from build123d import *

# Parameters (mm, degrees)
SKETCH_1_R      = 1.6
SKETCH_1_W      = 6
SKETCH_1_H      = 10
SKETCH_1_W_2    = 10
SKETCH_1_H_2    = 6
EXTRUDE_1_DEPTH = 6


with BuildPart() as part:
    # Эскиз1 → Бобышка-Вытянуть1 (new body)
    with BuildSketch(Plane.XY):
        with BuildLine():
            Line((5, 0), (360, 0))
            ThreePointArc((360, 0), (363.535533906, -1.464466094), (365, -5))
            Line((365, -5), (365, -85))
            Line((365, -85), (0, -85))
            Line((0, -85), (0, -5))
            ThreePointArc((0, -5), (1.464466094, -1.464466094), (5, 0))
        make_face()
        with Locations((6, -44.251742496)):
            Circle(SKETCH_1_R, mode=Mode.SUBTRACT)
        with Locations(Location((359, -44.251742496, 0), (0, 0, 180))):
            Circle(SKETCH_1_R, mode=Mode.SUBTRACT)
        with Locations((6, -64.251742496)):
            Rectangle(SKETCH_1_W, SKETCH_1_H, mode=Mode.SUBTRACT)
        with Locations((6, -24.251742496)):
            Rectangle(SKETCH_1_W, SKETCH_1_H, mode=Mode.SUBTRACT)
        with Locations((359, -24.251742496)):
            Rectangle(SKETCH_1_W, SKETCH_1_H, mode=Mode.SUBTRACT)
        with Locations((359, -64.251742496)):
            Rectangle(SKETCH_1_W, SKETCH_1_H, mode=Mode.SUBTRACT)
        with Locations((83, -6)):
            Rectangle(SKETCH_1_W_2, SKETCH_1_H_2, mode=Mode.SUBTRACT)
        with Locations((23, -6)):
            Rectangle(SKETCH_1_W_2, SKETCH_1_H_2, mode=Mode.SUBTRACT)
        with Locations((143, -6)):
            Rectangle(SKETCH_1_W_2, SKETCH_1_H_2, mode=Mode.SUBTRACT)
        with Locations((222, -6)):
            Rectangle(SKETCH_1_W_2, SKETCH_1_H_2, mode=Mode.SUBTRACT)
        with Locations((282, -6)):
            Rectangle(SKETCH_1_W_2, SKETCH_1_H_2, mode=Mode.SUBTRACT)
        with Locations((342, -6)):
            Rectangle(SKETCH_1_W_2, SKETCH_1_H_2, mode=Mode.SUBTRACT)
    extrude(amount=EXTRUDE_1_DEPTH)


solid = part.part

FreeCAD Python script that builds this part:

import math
import FreeCAD as App
import Part
import Sketcher
Q = App.Units.Quantity

doc = App.newDocument("Part")
params = doc.addObject("Spreadsheet::Sheet", "Params")
for row, (alias, value) in enumerate([
    ("sketch1_radius", "5 mm"),
    ("sketch1_diameter", "3.2 mm"),
    ("sketch1_width", "355 mm"),
    ("sketch1_width2", "6 mm"),
    ("sketch1_width3", "10 mm"),
    ("pad1_length", "6 mm"),
], start=1):
    params.set(f"A{row}", alias)
    params.set(f"B{row}", "=" + value)
    params.setAlias(f"B{row}", alias)

body = doc.addObject("PartDesign::Body", "Body")

sketch1 = body.newObject("Sketcher::SketchObject", "Sketch")
sketch1.AttachmentSupport = (doc.getObject("XY_Plane"), [""])
sketch1.MapMode = "FlatFace"
sketch1.addGeometry(Part.LineSegment(App.Vector(360, 0, 0), App.Vector(5, 0, 0)), False)
sketch1.addGeometry(Part.ArcOfCircle(Part.Circle(App.Vector(5, -5, 0), App.Vector(0, 0, 1), 5), math.radians(90), math.radians(180)), False)
sketch1.addGeometry(Part.LineSegment(App.Vector(0, -5, 0), App.Vector(0, -85, 0)), False)
sketch1.addGeometry(Part.LineSegment(App.Vector(0, -85, 0), App.Vector(365, -85, 0)), False)
sketch1.addGeometry(Part.LineSegment(App.Vector(365, -85, 0), App.Vector(365, -5, 0)), False)
sketch1.addGeometry(Part.ArcOfCircle(Part.Circle(App.Vector(360, -5, 0), App.Vector(0, 0, 1), 5), math.radians(0), math.radians(90)), False)
sketch1.addGeometry(Part.LineSegment(App.Vector(356, -69.3, 0), App.Vector(356, -59.3, 0)), False)
sketch1.addGeometry(Part.LineSegment(App.Vector(356, -59.3, 0), App.Vector(362, -59.3, 0)), False)
sketch1.addGeometry(Part.LineSegment(App.Vector(362, -59.3, 0), App.Vector(362, -69.3, 0)), False)
sketch1.addGeometry(Part.LineSegment(App.Vector(362, -69.3, 0), App.Vector(356, -69.3, 0)), False)
sketch1.addGeometry(Part.Circle(App.Vector(359, -44.3, 0), App.Vector(0, 0, 1), 1.6), False)
sketch1.addGeometry(Part.LineSegment(App.Vector(3, -69.3, 0), App.Vector(3, -59.3, 0)), False)
sketch1.addGeometry(Part.LineSegment(App.Vector(3, -59.3, 0), App.Vector(9, -59.3, 0)), False)
sketch1.addGeometry(Part.LineSegment(App.Vector(9, -59.3, 0), App.Vector(9, -69.3, 0)), False)
sketch1.addGeometry(Part.LineSegment(App.Vector(9, -69.3, 0), App.Vector(3, -69.3, 0)), False)
sketch1.addGeometry(Part.Circle(App.Vector(6, -44.3, 0), App.Vector(0, 0, 1), 1.6), False)
sketch1.addGeometry(Part.LineSegment(App.Vector(356, -29.3, 0), App.Vector(356, -19.3, 0)), False)
sketch1.addGeometry(Part.LineSegment(App.Vector(356, -19.3, 0), App.Vector(362, -19.3, 0)), False)
sketch1.addGeometry(Part.LineSegment(App.Vector(362, -19.3, 0), App.Vector(362, -29.3, 0)), False)
sketch1.addGeometry(Part.LineSegment(App.Vector(362, -29.3, 0), App.Vector(356, -29.3, 0)), False)
sketch1.addGeometry(Part.LineSegment(App.Vector(337, -9, 0), App.Vector(337, -3, 0)), False)
sketch1.addGeometry(Part.LineSegment(App.Vector(337, -3, 0), App.Vector(347, -3, 0)), False)
sketch1.addGeometry(Part.LineSegment(App.Vector(347, -3, 0), App.Vector(347, -9, 0)), False)
sketch1.addGeometry(Part.LineSegment(App.Vector(347, -9, 0), App.Vector(337, -9, 0)), False)
sketch1.addGeometry(Part.LineSegment(App.Vector(277, -9, 0), App.Vector(277, -3, 0)), False)
sketch1.addGeometry(Part.LineSegment(App.Vector(277, -3, 0), App.Vector(287, -3, 0)), False)
sketch1.addGeometry(Part.LineSegment(App.Vector(287, -3, 0), App.Vector(287, -9, 0)), False)
sketch1.addGeometry(Part.LineSegment(App.Vector(287, -9, 0), App.Vector(277, -9, 0)), False)
sketch1.addGeometry(Part.LineSegment(App.Vector(217, -9, 0), App.Vector(217, -3, 0)), False)
sketch1.addGeometry(Part.LineSegment(App.Vector(217, -3, 0), App.Vector(227, -3, 0)), False)
sketch1.addGeometry(Part.LineSegment(App.Vector(227, -3, 0), App.Vector(227, -9, 0)), False)
sketch1.addGeometry(Part.LineSegment(App.Vector(227, -9, 0), App.Vector(217, -9, 0)), False)
sketch1.addGeometry(Part.LineSegment(App.Vector(3, -29.3, 0), App.Vector(3, -19.3, 0)), False)
sketch1.addGeometry(Part.LineSegment(App.Vector(3, -19.3, 0), App.Vector(9, -19.3, 0)), False)
sketch1.addGeometry(Part.LineSegment(App.Vector(9, -19.3, 0), App.Vector(9, -29.3, 0)), False)
sketch1.addGeometry(Part.LineSegment(App.Vector(9, -29.3, 0), App.Vector(3, -29.3, 0)), False)
sketch1.addGeometry(Part.LineSegment(App.Vector(138, -9, 0), App.Vector(138, -3, 0)), False)
sketch1.addGeometry(Part.LineSegment(App.Vector(138, -3, 0), App.Vector(148, -3, 0)), False)
sketch1.addGeometry(Part.LineSegment(App.Vector(148, -3, 0), App.Vector(148, -9, 0)), False)
sketch1.addGeometry(Part.LineSegment(App.Vector(148, -9, 0), App.Vector(138, -9, 0)), False)
sketch1.addGeometry(Part.LineSegment(App.Vector(78, -9, 0), App.Vector(78, -3, 0)), False)
sketch1.addGeometry(Part.LineSegment(App.Vector(78, -3, 0), App.Vector(88, -3, 0)), False)
sketch1.addGeometry(Part.LineSegment(App.Vector(88, -3, 0), App.Vector(88, -9, 0)), False)
sketch1.addGeometry(Part.LineSegment(App.Vector(88, -9, 0), App.Vector(78, -9, 0)), False)
sketch1.addGeometry(Part.LineSegment(App.Vector(18, -9, 0), App.Vector(18, -3, 0)), False)
sketch1.addGeometry(Part.LineSegment(App.Vector(18, -3, 0), App.Vector(28, -3, 0)), False)
sketch1.addGeometry(Part.LineSegment(App.Vector(28, -3, 0), App.Vector(28, -9, 0)), False)
sketch1.addGeometry(Part.LineSegment(App.Vector(28, -9, 0), App.Vector(18, -9, 0)), False)
sketch1.addConstraint(Sketcher.Constraint("Tangent", 0, 2, 1, 1))
sketch1.addConstraint(Sketcher.Constraint("Tangent", 1, 2, 2, 1))
sketch1.addConstraint(Sketcher.Constraint("Coincident", 2, 2, 3, 1))
sketch1.addConstraint(Sketcher.Constraint("Coincident", 3, 2, 4, 1))
sketch1.addConstraint(Sketcher.Constraint("Tangent", 4, 2, 5, 1))
sketch1.addConstraint(Sketcher.Constraint("Tangent", 5, 2, 0, 1))
sketch1.addConstraint(Sketcher.Constraint("Coincident", 6, 2, 7, 1))
sketch1.addConstraint(Sketcher.Constraint("Coincident", 7, 2, 8, 1))
sketch1.addConstraint(Sketcher.Constraint("Coincident", 8, 2, 9, 1))
sketch1.addConstraint(Sketcher.Constraint("Coincident", 9, 2, 6, 1))
sketch1.addConstraint(Sketcher.Constraint("Coincident", 11, 2, 12, 1))
sketch1.addConstraint(Sketcher.Constraint("Coincident", 12, 2, 13, 1))
sketch1.addConstraint(Sketcher.Constraint("Coincident", 13, 2, 14, 1))
sketch1.addConstraint(Sketcher.Constraint("Coincident", 14, 2, 11, 1))
sketch1.addConstraint(Sketcher.Constraint("Coincident", 16, 2, 17, 1))
sketch1.addConstraint(Sketcher.Constraint("Coincident", 17, 2, 18, 1))
sketch1.addConstraint(Sketcher.Constraint("Coincident", 18, 2, 19, 1))
sketch1.addConstraint(Sketcher.Constraint("Coincident", 19, 2, 16, 1))
sketch1.addConstraint(Sketcher.Constraint("Coincident", 20, 2, 21, 1))
sketch1.addConstraint(Sketcher.Constraint("Coincident", 21, 2, 22, 1))
sketch1.addConstraint(Sketcher.Constraint("Coincident", 22, 2, 23, 1))
sketch1.addConstraint(Sketcher.Constraint("Coincident", 23, 2, 20, 1))
sketch1.addConstraint(Sketcher.Constraint("Coincident", 24, 2, 25, 1))
sketch1.addConstraint(Sketcher.Constraint("Coincident", 25, 2, 26, 1))
sketch1.addConstraint(Sketcher.Constraint("Coincident", 26, 2, 27, 1))
sketch1.addConstraint(Sketcher.Constraint("Coincident", 27, 2, 24, 1))
sketch1.addConstraint(Sketcher.Constraint("Coincident", 28, 2, 29, 1))
sketch1.addConstraint(Sketcher.Constraint("Coincident", 29, 2, 30, 1))
sketch1.addConstraint(Sketcher.Constraint("Coincident", 30, 2, 31, 1))
sketch1.addConstraint(Sketcher.Constraint("Coincident", 31, 2, 28, 1))
sketch1.addConstraint(Sketcher.Constraint("Coincident", 32, 2, 33, 1))
sketch1.addConstraint(Sketcher.Constraint("Coincident", 33, 2, 34, 1))
sketch1.addConstraint(Sketcher.Constraint("Coincident", 34, 2, 35, 1))
sketch1.addConstraint(Sketcher.Constraint("Coincident", 35, 2, 32, 1))
sketch1.addConstraint(Sketcher.Constraint("Coincident", 36, 2, 37, 1))
sketch1.addConstraint(Sketcher.Constraint("Coincident", 37, 2, 38, 1))
sketch1.addConstraint(Sketcher.Constraint("Coincident", 38, 2, 39, 1))
sketch1.addConstraint(Sketcher.Constraint("Coincident", 39, 2, 36, 1))
sketch1.addConstraint(Sketcher.Constraint("Coincident", 40, 2, 41, 1))
sketch1.addConstraint(Sketcher.Constraint("Coincident", 41, 2, 42, 1))
sketch1.addConstraint(Sketcher.Constraint("Coincident", 42, 2, 43, 1))
sketch1.addConstraint(Sketcher.Constraint("Coincident", 43, 2, 40, 1))
sketch1.addConstraint(Sketcher.Constraint("Coincident", 44, 2, 45, 1))
sketch1.addConstraint(Sketcher.Constraint("Coincident", 45, 2, 46, 1))
sketch1.addConstraint(Sketcher.Constraint("Coincident", 46, 2, 47, 1))
sketch1.addConstraint(Sketcher.Constraint("Coincident", 47, 2, 44, 1))
sketch1.addConstraint(Sketcher.Constraint("Horizontal", 0))
sketch1.addConstraint(Sketcher.Constraint("Vertical", 2))
sketch1.addConstraint(Sketcher.Constraint("Horizontal", 3))
sketch1.addConstraint(Sketcher.Constraint("Vertical", 4))
sketch1.addConstraint(Sketcher.Constraint("Vertical", 6))
sketch1.addConstraint(Sketcher.Constraint("Horizontal", 7))
sketch1.addConstraint(Sketcher.Constraint("Vertical", 8))
sketch1.addConstraint(Sketcher.Constraint("Horizontal", 9))
sketch1.addConstraint(Sketcher.Constraint("Vertical", 11))
sketch1.addConstraint(Sketcher.Constraint("Horizontal", 12))
sketch1.addConstraint(Sketcher.Constraint("Vertical", 13))
sketch1.addConstraint(Sketcher.Constraint("Horizontal", 14))
sketch1.addConstraint(Sketcher.Constraint("Vertical", 16))
sketch1.addConstraint(Sketcher.Constraint("Horizontal", 17))
sketch1.addConstraint(Sketcher.Constraint("Vertical", 18))
sketch1.addConstraint(Sketcher.Constraint("Horizontal", 19))
sketch1.addConstraint(Sketcher.Constraint("Vertical", 20))
sketch1.addConstraint(Sketcher.Constraint("Horizontal", 21))
sketch1.addConstraint(Sketcher.Constraint("Vertical", 22))
sketch1.addConstraint(Sketcher.Constraint("Horizontal", 23))
sketch1.addConstraint(Sketcher.Constraint("Vertical", 24))
sketch1.addConstraint(Sketcher.Constraint("Horizontal", 25))
sketch1.addConstraint(Sketcher.Constraint("Vertical", 26))
sketch1.addConstraint(Sketcher.Constraint("Horizontal", 27))
sketch1.addConstraint(Sketcher.Constraint("Vertical", 28))
sketch1.addConstraint(Sketcher.Constraint("Horizontal", 29))
sketch1.addConstraint(Sketcher.Constraint("Vertical", 30))
sketch1.addConstraint(Sketcher.Constraint("Horizontal", 31))
sketch1.addConstraint(Sketcher.Constraint("Vertical", 32))
sketch1.addConstraint(Sketcher.Constraint("Horizontal", 33))
sketch1.addConstraint(Sketcher.Constraint("Vertical", 34))
sketch1.addConstraint(Sketcher.Constraint("Horizontal", 35))
sketch1.addConstraint(Sketcher.Constraint("Vertical", 36))
sketch1.addConstraint(Sketcher.Constraint("Horizontal", 37))
sketch1.addConstraint(Sketcher.Constraint("Vertical", 38))
sketch1.addConstraint(Sketcher.Constraint("Horizontal", 39))
sketch1.addConstraint(Sketcher.Constraint("Vertical", 40))
sketch1.addConstraint(Sketcher.Constraint("Horizontal", 41))
sketch1.addConstraint(Sketcher.Constraint("Vertical", 42))
sketch1.addConstraint(Sketcher.Constraint("Horizontal", 43))
sketch1.addConstraint(Sketcher.Constraint("Vertical", 44))
sketch1.addConstraint(Sketcher.Constraint("Horizontal", 45))
sketch1.addConstraint(Sketcher.Constraint("Vertical", 46))
sketch1.addConstraint(Sketcher.Constraint("Horizontal", 47))
sketch1.addConstraint(Sketcher.Constraint("Equal", 1, 5))
sketch1.addConstraint(Sketcher.Constraint("Equal", 10, 15))
sketch1.addConstraint(Sketcher.Constraint("PointOnObject", 0, 2, -1))
sketch1.addConstraint(Sketcher.Constraint("PointOnObject", 1, 2, -2))
sketch1.addConstraint(Sketcher.Constraint("Horizontal", 10, 3, 15, 3))
sketch1.addConstraint(Sketcher.Constraint("Horizontal", 7, 2, 11, 2))
sketch1.addConstraint(Sketcher.Constraint("Horizontal", 9, 2, 13, 2))
sketch1.addConstraint(Sketcher.Constraint("Horizontal", 21, 2, 24, 2))
sketch1.addConstraint(Sketcher.Constraint("Horizontal", 23, 2, 26, 2))
sketch1.addConstraint(Sketcher.Constraint("Horizontal", 25, 2, 28, 2))
sketch1.addConstraint(Sketcher.Constraint("Horizontal", 27, 2, 30, 2))
sketch1.addConstraint(Sketcher.Constraint("Horizontal", 17, 2, 32, 2))
sketch1.addConstraint(Sketcher.Constraint("Horizontal", 19, 2, 34, 2))
sketch1.addConstraint(Sketcher.Constraint("Horizontal", 29, 2, 36, 2))
sketch1.addConstraint(Sketcher.Constraint("Horizontal", 31, 2, 38, 2))
sketch1.addConstraint(Sketcher.Constraint("Horizontal", 37, 2, 40, 2))
sketch1.addConstraint(Sketcher.Constraint("Horizontal", 39, 2, 42, 2))
sketch1.addConstraint(Sketcher.Constraint("Horizontal", 41, 2, 44, 2))
sketch1.addConstraint(Sketcher.Constraint("Horizontal", 43, 2, 46, 2))
sketch1.addConstraint(Sketcher.Constraint("Vertical", 9, 2, 16, 2))
sketch1.addConstraint(Sketcher.Constraint("Vertical", 8, 2, 17, 2))
sketch1.addConstraint(Sketcher.Constraint("Vertical", 14, 2, 32, 2))
sketch1.addConstraint(Sketcher.Constraint("Vertical", 13, 2, 33, 2))
sketch1.addConstraint(Sketcher.Constraint("Equal", 9, 12))
sketch1.addConstraint(Sketcher.Constraint("Equal", 23, 25))
sketch1.addConstraint(Sketcher.Constraint("Equal", 27, 29))
sketch1.addConstraint(Sketcher.Constraint("Equal", 31, 37))
sketch1.addConstraint(Sketcher.Constraint("Equal", 39, 41))
sketch1.addConstraint(Sketcher.Constraint("Equal", 43, 45))
sketch1.addConstraint(Sketcher.Constraint("Equal", 47, 6))
sketch1.addConstraint(Sketcher.Constraint("Equal", 13, 16))
sketch1.addConstraint(Sketcher.Constraint("Equal", 35, 20))
sketch1.addConstraint(Sketcher.Constraint("Radius", 1, Q("5 mm")))
sketch1.addConstraint(Sketcher.Constraint("Diameter", 10, Q("3.2 mm")))
sketch1.addConstraint(Sketcher.Constraint("DistanceX", 0, 2, 0, 1, Q("355 mm")))
sketch1.addConstraint(Sketcher.Constraint("DistanceX", 7, 1, 7, 2, Q("6 mm")))
sketch1.addConstraint(Sketcher.Constraint("DistanceX", 21, 1, 21, 2, Q("10 mm")))
sketch1.addConstraint(Sketcher.Constraint("DistanceY", 2, 2, 2, 1, Q("80 mm")))
sketch1.addConstraint(Sketcher.Constraint("DistanceX", -1, 1, 10, 3, Q("359 mm")))
sketch1.addConstraint(Sketcher.Constraint("DistanceX", -1, 1, 15, 3, Q("6 mm")))
sketch1.addConstraint(Sketcher.Constraint("DistanceX", -1, 1, 6, 2, Q("356 mm")))
sketch1.addConstraint(Sketcher.Constraint("DistanceX", -1, 1, 11, 2, Q("3 mm")))
sketch1.addConstraint(Sketcher.Constraint("DistanceX", -1, 1, 20, 2, Q("337 mm")))
sketch1.addConstraint(Sketcher.Constraint("DistanceY", 20, 2, -1, 1, Q("3 mm")))
sketch1.addConstraint(Sketcher.Constraint("DistanceX", -1, 1, 24, 2, Q("277 mm")))
sketch1.addConstraint(Sketcher.Constraint("DistanceX", -1, 1, 28, 2, Q("217 mm")))
sketch1.addConstraint(Sketcher.Constraint("DistanceX", -1, 1, 36, 2, Q("138 mm")))
sketch1.addConstraint(Sketcher.Constraint("DistanceX", -1, 1, 40, 2, Q("78 mm")))
sketch1.addConstraint(Sketcher.Constraint("DistanceX", -1, 1, 44, 2, Q("18 mm")))
sketch1.addConstraint(Sketcher.Constraint("DistanceY", 6, 2, 10, 3, Q("15 mm")))
sketch1.addConstraint(Sketcher.Constraint("DistanceY", 10, 3, 16, 2, Q("25 mm")))
sketch1.addConstraint(Sketcher.Constraint("DistanceY", 10, 3, -1, 1, Q("44.251742 mm")))
sketch1.setExpression("Constraints[122]", "Params.sketch1_radius")
sketch1.setExpression("Constraints[123]", "Params.sketch1_diameter")
sketch1.setExpression("Constraints[124]", "Params.sketch1_width")
sketch1.setExpression("Constraints[125]", "Params.sketch1_width2")
sketch1.setExpression("Constraints[126]", "Params.sketch1_width3")
pad1 = body.newObject("PartDesign::Pad", "Pad")
pad1.Profile = sketch1
pad1.setExpression("Length", "Params.pad1_length")

doc.recompute()
